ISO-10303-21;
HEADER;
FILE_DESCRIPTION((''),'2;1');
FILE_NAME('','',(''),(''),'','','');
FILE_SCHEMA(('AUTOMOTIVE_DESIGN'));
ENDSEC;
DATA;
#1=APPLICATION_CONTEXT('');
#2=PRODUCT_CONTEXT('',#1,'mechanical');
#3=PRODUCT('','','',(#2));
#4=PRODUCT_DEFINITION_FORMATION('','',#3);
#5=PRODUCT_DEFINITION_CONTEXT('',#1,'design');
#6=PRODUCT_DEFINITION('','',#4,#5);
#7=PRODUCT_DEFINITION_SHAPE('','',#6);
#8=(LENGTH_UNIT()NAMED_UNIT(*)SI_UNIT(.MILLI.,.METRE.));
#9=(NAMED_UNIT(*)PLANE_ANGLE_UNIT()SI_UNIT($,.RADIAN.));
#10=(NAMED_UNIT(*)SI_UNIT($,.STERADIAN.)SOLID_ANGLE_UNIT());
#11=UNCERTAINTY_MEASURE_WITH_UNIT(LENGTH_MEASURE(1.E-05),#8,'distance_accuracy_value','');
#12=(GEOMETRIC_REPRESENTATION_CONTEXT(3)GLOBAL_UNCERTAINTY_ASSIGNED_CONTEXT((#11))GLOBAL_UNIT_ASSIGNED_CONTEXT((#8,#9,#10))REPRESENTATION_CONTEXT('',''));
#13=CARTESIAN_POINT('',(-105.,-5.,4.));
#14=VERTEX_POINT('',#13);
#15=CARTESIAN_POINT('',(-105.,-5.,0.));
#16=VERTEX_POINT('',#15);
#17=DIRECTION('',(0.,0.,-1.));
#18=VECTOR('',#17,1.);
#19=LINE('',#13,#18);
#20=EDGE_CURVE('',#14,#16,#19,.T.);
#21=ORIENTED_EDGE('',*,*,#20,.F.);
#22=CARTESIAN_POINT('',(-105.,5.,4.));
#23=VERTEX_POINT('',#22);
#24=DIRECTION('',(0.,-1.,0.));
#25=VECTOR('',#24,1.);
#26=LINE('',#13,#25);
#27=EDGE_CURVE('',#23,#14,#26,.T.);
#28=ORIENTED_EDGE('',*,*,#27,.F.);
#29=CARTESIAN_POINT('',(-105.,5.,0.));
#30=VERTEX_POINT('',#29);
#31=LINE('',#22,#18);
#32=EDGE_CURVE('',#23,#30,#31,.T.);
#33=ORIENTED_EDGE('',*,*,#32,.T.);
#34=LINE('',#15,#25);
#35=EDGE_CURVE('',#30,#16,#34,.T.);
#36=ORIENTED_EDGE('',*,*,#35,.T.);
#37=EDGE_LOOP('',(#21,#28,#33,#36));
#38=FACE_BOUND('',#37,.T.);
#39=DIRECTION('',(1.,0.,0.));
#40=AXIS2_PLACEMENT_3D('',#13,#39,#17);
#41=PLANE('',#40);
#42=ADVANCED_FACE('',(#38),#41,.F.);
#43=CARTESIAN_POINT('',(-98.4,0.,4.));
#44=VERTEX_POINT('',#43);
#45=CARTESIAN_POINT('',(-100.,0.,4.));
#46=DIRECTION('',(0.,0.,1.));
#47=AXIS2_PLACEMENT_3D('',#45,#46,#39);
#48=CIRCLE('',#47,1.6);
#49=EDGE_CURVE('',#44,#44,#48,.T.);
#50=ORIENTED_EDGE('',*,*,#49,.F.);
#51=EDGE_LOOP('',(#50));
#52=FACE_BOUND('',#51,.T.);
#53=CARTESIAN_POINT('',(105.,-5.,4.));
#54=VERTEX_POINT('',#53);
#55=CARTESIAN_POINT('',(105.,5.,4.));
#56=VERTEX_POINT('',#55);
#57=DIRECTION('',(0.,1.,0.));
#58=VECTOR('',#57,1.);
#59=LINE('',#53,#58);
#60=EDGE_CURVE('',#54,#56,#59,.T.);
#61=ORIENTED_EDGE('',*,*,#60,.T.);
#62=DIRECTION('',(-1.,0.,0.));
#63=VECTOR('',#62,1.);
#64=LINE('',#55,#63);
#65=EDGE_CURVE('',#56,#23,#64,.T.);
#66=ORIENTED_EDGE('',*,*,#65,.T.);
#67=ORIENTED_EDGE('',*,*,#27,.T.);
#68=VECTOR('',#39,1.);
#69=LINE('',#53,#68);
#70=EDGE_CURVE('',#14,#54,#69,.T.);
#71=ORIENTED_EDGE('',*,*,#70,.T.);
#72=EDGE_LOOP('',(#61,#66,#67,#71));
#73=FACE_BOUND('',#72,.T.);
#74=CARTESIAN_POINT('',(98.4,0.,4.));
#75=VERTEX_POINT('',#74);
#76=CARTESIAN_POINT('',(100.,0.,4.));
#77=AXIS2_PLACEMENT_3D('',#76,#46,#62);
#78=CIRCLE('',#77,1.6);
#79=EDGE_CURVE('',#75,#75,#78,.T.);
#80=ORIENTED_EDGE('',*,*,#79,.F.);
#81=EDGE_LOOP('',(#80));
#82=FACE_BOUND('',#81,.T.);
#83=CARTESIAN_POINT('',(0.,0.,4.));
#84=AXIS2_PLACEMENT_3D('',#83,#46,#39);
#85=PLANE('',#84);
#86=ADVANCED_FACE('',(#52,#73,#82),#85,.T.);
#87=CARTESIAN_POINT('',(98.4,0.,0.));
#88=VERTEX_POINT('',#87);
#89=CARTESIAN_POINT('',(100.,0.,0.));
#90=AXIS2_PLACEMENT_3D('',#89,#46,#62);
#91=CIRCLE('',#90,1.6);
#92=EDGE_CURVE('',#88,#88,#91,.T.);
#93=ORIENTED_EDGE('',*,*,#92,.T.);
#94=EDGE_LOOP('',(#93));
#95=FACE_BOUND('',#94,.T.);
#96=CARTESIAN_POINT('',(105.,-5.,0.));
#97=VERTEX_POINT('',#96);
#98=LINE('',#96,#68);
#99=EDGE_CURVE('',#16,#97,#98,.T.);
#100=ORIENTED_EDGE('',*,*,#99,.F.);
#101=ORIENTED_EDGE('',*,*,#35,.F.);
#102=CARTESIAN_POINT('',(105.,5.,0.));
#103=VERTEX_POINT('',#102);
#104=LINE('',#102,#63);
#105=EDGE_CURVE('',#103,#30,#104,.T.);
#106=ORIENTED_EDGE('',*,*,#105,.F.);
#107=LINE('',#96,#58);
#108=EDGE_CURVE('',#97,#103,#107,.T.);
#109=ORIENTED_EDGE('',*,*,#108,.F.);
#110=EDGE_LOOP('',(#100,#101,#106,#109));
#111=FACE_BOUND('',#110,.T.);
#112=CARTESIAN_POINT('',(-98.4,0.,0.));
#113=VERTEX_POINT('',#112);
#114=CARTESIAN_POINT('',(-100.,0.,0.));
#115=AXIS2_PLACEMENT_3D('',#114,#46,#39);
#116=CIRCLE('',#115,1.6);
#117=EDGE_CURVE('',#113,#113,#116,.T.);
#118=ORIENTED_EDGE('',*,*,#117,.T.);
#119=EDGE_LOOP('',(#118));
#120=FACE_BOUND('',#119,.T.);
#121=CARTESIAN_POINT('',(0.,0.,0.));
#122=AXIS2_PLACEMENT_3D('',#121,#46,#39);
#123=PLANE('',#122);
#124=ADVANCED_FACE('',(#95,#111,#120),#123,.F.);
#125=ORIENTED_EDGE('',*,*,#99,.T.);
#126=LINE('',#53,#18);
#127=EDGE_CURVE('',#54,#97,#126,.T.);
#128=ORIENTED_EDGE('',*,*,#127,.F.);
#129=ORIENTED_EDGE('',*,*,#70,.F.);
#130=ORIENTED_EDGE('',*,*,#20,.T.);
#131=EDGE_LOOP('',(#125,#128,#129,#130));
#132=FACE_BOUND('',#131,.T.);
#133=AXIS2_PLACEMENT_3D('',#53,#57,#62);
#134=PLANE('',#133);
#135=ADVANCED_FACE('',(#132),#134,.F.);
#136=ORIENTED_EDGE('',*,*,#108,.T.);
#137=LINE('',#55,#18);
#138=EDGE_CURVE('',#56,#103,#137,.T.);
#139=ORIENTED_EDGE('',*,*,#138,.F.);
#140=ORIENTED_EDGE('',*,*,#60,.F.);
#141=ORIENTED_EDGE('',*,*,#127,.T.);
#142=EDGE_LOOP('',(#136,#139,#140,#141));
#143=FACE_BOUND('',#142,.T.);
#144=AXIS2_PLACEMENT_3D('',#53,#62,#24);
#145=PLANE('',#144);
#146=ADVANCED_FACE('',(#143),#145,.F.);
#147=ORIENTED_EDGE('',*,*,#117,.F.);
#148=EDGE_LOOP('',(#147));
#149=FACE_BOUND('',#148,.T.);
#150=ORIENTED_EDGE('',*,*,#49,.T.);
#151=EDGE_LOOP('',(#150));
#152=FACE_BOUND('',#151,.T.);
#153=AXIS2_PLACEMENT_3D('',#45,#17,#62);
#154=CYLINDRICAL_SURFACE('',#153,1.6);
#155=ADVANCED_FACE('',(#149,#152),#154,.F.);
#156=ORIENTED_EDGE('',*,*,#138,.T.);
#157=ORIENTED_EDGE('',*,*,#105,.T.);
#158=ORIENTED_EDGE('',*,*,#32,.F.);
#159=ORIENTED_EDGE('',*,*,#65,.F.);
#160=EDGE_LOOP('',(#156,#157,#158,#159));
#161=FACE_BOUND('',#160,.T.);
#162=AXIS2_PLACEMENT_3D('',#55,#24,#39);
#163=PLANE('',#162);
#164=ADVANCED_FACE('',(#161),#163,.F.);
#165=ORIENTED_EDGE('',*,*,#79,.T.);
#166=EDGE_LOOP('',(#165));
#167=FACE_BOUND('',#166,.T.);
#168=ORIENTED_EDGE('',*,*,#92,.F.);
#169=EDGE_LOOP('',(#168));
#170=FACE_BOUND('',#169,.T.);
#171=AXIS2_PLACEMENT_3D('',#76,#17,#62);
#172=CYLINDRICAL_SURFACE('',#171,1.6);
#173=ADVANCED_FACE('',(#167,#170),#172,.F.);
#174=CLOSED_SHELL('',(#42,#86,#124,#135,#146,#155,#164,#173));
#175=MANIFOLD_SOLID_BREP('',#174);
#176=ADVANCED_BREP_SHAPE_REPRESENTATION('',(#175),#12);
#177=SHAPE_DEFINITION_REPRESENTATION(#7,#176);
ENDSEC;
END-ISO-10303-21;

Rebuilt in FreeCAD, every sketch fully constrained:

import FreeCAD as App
import Part
import Sketcher
from FreeCAD import Vector
Q = App.Units.Quantity


def add_polygon(sketch, points):
    """Adds a closed chain of lines whose ends are joined by coincident constraints."""
    first, n = sketch.GeometryCount, len(points)
    for a, b in zip(points, points[1:] + points[:1]):
        sketch.addGeometry(Part.LineSegment(App.Vector(*a, 0), App.Vector(*b, 0)), False)
    for i in range(n):
        sketch.addConstraint(Sketcher.Constraint("Coincident", first + i, 2, first + (i + 1) % n, 1))

doc = App.newDocument("Part")
body = doc.addObject("PartDesign::Body", "Body")

sketch1 = body.newObject("Sketcher::SketchObject", "Sketch")
sketch1.AttachmentSupport = (doc.getObject("XY_Plane"), [""])
sketch1.MapMode = "FlatFace"
add_polygon(sketch1, [(-105, 5), (-105, -5), (105, -5), (105, 5)])
sketch1.addGeometry(Part.Circle(Vector(-100, 0, 0), Vector(0, 0, 1), 1.6), False)
sketch1.addGeometry(Part.Circle(Vector(100, 0, 0), Vector(0, 0, 1), 1.6), False)
sketch1.addConstraint([
    Sketcher.Constraint("Vertical", 0),
    Sketcher.Constraint("Horizontal", 1),
    Sketcher.Constraint("Vertical", 2),
    Sketcher.Constraint("Horizontal", 3),
    Sketcher.Constraint("Equal", 4, 5),
    Sketcher.Constraint("Symmetric", 4, 3, 5, 3, -1, 1),
    Sketcher.Constraint("Symmetric", 0, 2, 2, 2, -1, 1),
    Sketcher.Constraint("PointOnObject", 4, 3, -1),
    Sketcher.Constraint("Diameter", 4, Q("3.2 mm")),
    Sketcher.Constraint("DistanceX", 1, 1, 1, 2, Q("210 mm")),
    Sketcher.Constraint("DistanceY", 0, 2, 0, 1, Q("10 mm")),
    Sketcher.Constraint("DistanceX", 4, 3, -1, 1, Q("100 mm")),
])
pad1 = body.newObject("PartDesign::Pad", "Pad")
pad1.Profile = sketch1
pad1.Length = 4

doc.recompute()
